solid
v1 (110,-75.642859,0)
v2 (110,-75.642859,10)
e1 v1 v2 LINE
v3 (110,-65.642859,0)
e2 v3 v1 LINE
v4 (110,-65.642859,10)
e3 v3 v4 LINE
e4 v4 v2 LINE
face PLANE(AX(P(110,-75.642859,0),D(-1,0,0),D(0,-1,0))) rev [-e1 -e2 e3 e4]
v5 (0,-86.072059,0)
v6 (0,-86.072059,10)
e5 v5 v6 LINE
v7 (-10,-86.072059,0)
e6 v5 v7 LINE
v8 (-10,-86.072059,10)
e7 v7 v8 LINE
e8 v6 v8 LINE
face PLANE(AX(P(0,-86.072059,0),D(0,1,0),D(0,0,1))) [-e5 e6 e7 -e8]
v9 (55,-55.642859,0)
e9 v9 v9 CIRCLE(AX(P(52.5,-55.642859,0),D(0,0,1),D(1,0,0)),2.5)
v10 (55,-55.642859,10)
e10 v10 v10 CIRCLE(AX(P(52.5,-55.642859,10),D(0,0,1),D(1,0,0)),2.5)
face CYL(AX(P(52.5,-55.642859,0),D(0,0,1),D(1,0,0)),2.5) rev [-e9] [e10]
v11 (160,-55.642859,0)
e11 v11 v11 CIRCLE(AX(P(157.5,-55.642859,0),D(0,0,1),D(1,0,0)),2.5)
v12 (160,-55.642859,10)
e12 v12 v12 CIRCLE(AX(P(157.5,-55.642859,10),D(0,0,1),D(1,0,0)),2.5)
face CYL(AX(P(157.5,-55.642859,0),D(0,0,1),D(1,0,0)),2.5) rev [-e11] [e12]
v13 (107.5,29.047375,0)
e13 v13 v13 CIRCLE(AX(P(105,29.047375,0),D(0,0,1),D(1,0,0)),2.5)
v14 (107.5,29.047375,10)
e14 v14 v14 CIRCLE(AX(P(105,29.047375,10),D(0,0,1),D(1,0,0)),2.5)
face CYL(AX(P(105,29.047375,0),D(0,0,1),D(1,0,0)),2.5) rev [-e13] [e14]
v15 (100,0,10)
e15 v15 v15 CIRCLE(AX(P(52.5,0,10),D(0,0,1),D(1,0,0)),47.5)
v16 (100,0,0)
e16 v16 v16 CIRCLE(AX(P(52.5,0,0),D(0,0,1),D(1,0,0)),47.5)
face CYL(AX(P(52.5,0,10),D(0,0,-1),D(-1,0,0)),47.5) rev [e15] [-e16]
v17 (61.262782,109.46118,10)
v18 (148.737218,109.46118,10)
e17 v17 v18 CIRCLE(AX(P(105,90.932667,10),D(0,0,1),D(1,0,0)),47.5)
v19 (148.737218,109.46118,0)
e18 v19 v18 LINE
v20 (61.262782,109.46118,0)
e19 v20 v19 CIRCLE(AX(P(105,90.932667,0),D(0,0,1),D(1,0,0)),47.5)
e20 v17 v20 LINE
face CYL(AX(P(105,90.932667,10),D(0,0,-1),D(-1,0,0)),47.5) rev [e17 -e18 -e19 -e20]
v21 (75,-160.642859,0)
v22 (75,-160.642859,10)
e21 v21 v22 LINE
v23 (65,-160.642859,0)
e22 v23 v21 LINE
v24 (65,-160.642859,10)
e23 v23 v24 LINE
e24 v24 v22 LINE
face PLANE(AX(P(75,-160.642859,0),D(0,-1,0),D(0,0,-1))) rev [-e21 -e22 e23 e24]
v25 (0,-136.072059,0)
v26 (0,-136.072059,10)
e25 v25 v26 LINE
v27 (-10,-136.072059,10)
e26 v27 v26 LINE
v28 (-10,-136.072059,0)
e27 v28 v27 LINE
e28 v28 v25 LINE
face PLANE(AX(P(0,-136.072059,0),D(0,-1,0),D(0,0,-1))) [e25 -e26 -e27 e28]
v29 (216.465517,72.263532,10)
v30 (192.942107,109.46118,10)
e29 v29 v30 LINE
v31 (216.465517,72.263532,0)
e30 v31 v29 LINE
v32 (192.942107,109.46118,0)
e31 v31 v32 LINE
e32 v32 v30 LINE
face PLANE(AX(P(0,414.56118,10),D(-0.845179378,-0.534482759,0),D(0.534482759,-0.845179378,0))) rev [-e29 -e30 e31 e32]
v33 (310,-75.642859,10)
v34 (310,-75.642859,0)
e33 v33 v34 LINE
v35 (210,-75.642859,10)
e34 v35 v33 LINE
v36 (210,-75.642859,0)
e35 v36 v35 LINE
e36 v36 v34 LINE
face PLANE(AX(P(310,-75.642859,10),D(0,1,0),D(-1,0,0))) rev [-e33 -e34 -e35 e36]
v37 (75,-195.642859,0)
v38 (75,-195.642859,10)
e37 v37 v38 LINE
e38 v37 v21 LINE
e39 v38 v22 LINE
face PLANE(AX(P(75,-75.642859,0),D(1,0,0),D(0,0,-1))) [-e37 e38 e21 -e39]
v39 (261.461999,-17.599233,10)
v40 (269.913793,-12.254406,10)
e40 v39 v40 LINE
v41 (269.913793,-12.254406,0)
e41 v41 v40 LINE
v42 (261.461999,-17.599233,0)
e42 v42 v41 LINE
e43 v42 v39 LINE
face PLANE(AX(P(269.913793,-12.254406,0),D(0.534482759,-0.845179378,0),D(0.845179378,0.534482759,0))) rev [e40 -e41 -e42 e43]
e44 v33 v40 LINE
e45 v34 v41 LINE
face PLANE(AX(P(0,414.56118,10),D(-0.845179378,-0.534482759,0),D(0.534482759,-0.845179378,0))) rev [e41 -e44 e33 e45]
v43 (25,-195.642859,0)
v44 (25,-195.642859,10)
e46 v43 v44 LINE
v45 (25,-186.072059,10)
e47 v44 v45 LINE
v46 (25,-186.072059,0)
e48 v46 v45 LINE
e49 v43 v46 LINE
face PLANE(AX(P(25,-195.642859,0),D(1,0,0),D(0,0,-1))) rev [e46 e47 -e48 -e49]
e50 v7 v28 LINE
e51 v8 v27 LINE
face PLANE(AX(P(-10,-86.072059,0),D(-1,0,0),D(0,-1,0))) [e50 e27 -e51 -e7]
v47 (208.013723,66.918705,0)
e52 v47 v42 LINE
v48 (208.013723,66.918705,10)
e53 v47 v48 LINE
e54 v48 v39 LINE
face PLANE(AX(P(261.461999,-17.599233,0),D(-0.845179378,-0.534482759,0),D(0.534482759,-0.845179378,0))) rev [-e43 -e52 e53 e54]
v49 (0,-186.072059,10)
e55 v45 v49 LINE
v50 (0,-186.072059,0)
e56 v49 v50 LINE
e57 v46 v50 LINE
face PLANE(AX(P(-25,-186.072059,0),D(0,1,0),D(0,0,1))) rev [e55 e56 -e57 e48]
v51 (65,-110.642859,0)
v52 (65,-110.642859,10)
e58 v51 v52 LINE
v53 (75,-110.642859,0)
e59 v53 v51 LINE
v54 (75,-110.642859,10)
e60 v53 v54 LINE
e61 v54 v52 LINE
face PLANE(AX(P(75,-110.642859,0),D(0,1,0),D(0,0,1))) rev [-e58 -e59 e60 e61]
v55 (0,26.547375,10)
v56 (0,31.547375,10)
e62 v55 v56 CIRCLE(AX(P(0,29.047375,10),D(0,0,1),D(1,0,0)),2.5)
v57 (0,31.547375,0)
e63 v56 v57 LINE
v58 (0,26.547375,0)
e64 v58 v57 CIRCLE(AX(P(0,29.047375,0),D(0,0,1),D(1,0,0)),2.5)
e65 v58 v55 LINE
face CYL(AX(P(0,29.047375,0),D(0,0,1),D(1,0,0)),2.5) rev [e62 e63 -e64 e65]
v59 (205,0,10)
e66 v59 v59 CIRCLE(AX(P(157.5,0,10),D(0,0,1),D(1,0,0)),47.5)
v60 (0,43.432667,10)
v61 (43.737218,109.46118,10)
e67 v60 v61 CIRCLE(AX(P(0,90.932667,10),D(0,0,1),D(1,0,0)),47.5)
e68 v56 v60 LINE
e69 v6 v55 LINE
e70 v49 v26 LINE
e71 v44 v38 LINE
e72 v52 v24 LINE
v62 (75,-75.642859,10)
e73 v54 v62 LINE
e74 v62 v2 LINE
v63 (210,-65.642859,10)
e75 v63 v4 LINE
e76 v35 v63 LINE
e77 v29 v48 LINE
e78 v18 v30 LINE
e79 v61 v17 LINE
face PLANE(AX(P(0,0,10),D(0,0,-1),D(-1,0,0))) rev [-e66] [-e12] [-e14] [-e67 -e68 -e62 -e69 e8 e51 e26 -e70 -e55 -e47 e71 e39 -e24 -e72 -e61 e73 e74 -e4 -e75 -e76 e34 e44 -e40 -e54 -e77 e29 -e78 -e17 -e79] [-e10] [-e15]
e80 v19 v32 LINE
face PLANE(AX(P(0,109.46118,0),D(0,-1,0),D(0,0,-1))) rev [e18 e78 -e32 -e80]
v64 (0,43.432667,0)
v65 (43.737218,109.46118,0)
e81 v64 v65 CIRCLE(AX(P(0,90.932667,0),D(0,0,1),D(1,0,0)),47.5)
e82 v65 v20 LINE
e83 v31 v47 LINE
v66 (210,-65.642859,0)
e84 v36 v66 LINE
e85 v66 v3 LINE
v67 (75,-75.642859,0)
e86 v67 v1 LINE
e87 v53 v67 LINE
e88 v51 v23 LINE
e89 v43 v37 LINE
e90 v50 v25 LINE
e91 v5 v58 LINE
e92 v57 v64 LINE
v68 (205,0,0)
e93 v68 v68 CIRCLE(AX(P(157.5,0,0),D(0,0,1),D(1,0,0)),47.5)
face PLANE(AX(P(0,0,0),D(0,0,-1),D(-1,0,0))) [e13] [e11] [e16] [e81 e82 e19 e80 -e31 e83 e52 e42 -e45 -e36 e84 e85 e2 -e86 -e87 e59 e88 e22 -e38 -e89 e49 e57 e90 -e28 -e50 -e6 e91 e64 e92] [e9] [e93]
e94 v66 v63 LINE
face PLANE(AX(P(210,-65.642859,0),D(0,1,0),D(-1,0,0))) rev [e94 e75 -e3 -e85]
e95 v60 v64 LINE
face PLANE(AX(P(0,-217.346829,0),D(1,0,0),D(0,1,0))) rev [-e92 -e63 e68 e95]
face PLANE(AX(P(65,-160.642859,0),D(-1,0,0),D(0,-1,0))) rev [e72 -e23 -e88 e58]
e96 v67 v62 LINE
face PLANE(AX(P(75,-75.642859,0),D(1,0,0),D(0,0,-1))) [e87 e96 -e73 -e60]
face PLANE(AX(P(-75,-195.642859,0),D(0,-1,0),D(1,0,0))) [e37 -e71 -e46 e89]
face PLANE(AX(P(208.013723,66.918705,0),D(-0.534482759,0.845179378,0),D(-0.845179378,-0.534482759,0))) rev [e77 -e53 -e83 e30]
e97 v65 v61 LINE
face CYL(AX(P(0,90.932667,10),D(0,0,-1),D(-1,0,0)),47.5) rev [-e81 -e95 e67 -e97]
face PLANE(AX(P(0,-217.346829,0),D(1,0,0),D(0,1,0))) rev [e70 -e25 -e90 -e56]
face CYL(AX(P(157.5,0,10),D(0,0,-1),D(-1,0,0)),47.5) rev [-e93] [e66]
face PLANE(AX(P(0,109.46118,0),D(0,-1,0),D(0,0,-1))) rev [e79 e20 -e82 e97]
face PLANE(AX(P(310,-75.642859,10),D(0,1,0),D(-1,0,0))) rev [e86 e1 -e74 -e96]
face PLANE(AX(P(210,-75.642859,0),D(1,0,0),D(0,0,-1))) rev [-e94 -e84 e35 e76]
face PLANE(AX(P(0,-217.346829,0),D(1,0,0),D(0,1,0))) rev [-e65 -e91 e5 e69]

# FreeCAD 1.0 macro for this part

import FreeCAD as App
import Part
import Sketcher

V = App.Vector
Q = App.Units.Quantity


def add_polygon(sketch, points):
    """Adds a closed chain of lines whose ends are joined by coincident constraints."""
    first, n = sketch.GeometryCount, len(points)
    for a, b in zip(points, points[1:] + points[:1]):
        sketch.addGeometry(Part.LineSegment(App.Vector(*a, 0), App.Vector(*b, 0)), False)
    for i in range(n):
        sketch.addConstraint(Sketcher.Constraint("Coincident", first + i, 2, first + (i + 1) % n, 1))

doc = App.newDocument("Part")
body = doc.addObject("PartDesign::Body", "Body")

# Sketch on XY plane
sketch1 = body.newObject("Sketcher::SketchObject", "Sketch")
sketch1.AttachmentSupport = (doc.getObject("XY_Plane"), [""])
sketch1.MapMode = "FlatFace"
add_polygon(sketch1, [(0, 414.56118), (-310, -75.642859), (310, -75.642859)])  # lines 0-2
sketch1.addGeometry(Part.Circle(V(157.5, 0, 0), V(0, 0, 1), 47.5), False)  # 3
sketch1.addGeometry(Part.Circle(V(52.5, 0, 0), V(0, 0, 1), 47.5), False)  # 4
sketch1.addGeometry(Part.Circle(V(105, 90.932667, 0), V(0, 0, 1), 47.5), False)  # 5
sketch1.addGeometry(Part.Circle(V(-52.5, 0, 0), V(0, 0, 1), 47.5), False)  # 6
sketch1.addGeometry(Part.Circle(V(-157.5, 0, 0), V(0, 0, 1), 47.5), False)  # 7
sketch1.addGeometry(Part.Circle(V(0, 90.932667, 0), V(0, 0, 1), 47.5), False)  # 8
sketch1.addGeometry(Part.Circle(V(-105, 90.932667, 0), V(0, 0, 1), 47.5), False)  # 9
sketch1.addGeometry(Part.Circle(V(52.5, 181.865335, 0), V(0, 0, 1), 47.5), False)  # 10
sketch1.addGeometry(Part.Circle(V(-52.5, 181.865335, 0), V(0, 0, 1), 47.5), False)  # 11
sketch1.addGeometry(Part.Circle(V(0, 272.798002, 0), V(0, 0, 1), 47.5), False)  # 12
sketch1.addConstraint([
    Sketcher.Constraint("Horizontal", 1),
    Sketcher.Constraint("Equal", 3, 4),
    Sketcher.Constraint("Equal", 4, 5),
    Sketcher.Constraint("Equal", 5, 6),
    Sketcher.Constraint("Equal", 6, 7),
    Sketcher.Constraint("Equal", 7, 8),
    Sketcher.Constraint("Equal", 8, 9),
    Sketcher.Constraint("Equal", 9, 10),
    Sketcher.Constraint("Equal", 10, 11),
    Sketcher.Constraint("Equal", 11, 12),
    Sketcher.Constraint("Symmetric", 4, 3, 6, 3, -1, 1),
    Sketcher.Constraint("Symmetric", 3, 3, 7, 3, -1, 1),
    Sketcher.Constraint("Symmetric", 5, 3, 9, 3, -2),
    Sketcher.Constraint("Symmetric", 10, 3, 11, 3, -2),
    Sketcher.Constraint("PointOnObject", 3, 3, -1),
    Sketcher.Constraint("PointOnObject", 4, 3, -1),
    Sketcher.Constraint("PointOnObject", 8, 3, -2),
    Sketcher.Constraint("PointOnObject", 12, 3, -2),
    Sketcher.Constraint("PointOnObject", 2, 2, -2),
    Sketcher.Constraint("Horizontal", 5, 3, 8, 3),
    Sketcher.Constraint("Vertical", 4, 3, 10, 3),
    Sketcher.Constraint("Equal", 0, 2),
    Sketcher.Constraint("Diameter", 3, Q("95 mm")),
    Sketcher.Constraint("DistanceX", 1, 1, 1, 2, Q("620 mm")),
    Sketcher.Constraint("Distance", 0, Q("580 mm")),
    Sketcher.Constraint("DistanceX", -1, 1, 5, 3, Q("105 mm")),
    Sketcher.Constraint("DistanceX", 4, 3, 3, 3, Q("105 mm")),
    Sketcher.Constraint("DistanceX", 6, 3, 4, 3, Q("105 mm")),
    Sketcher.Constraint("DistanceY", 0, 2, -1, 1, Q("75.642859 mm")),
    Sketcher.Constraint("DistanceY", -1, 1, 5, 3, Q("90.932667 mm")),
    Sketcher.Constraint("DistanceY", -1, 1, 10, 3, Q("181.865335 mm")),
    Sketcher.Constraint("DistanceY", -1, 1, 12, 3, Q("272.798002 mm")),
])
pad1 = body.newObject("PartDesign::Pad", "Pad")
pad1.Profile = sketch1
pad1.Length = 10

# Sketch on XY plane
sketch2 = body.newObject("Sketcher::SketchObject", "Sketch001")
sketch2.AttachmentSupport = (doc.getObject("XY_Plane"), [""])
sketch2.MapMode = "FlatFace"
sketch2.AttachmentOffset = App.Placement(V(0, 0, 10), App.Rotation())
add_polygon(sketch2, [(-269.913793, -12.254406), (-261.461999, -17.599233), (-208.013723, 66.918705), (-216.465517, 72.263532)])  # lines 0-3
add_polygon(sketch2, [(-181.724138, 127.200192), (-173.272344, 121.855364), (-119.824068, 206.373302), (-128.275862, 211.718129)])  # lines 4-7
add_polygon(sketch2, [(-93.534483, 266.654789), (-85.082689, 261.309961), (-31.634413, 345.827899), (-40.086207, 351.172727)])  # lines 8-11
add_polygon(sketch2, [(261.461999, -17.599233), (269.913793, -12.254406), (216.465517, 72.263532), (208.013723, 66.918705)])  # lines 12-15
add_polygon(sketch2, [(173.272344, 121.855364), (181.724138, 127.200192), (128.275862, 211.718129), (119.824068, 206.373302)])  # lines 16-19
add_polygon(sketch2, [(85.082689, 261.309961), (93.534483, 266.654789), (40.086207, 351.172727), (31.634413, 345.827899)])  # lines 20-23
add_polygon(sketch2, [(-210, -65.642859), (-210, -75.642859), (-110, -75.642859), (-110, -65.642859)])  # lines 24-27
add_polygon(sketch2, [(110, -65.642859), (110, -75.642859), (210, -75.642859), (210, -65.642859)])  # lines 28-31
sketch2.addConstraint([
    Sketcher.Constraint("Vertical", 24),
    Sketcher.Constraint("Horizontal", 25),
    Sketcher.Constraint("Vertical", 26),
    Sketcher.Constraint("Horizontal", 27),
    Sketcher.Constraint("Vertical", 28),
    Sketcher.Constraint("Horizontal", 29),
    Sketcher.Constraint("Vertical", 30),
    Sketcher.Constraint("Horizontal", 31),
    Sketcher.Constraint("Symmetric", 3, 2, 12, 2, -2),
    Sketcher.Constraint("Symmetric", 2, 2, 13, 2, -2),
    Sketcher.Constraint("Symmetric", 1, 2, 14, 2, -2),
    Sketcher.Constraint("Symmetric", 0, 2, 15, 2, -2),
    Sketcher.Constraint("Symmetric", 7, 2, 16, 2, -2),
    Sketcher.Constraint("Symmetric", 6, 2, 17, 2, -2),
    Sketcher.Constraint("Symmetric", 5, 2, 18, 2, -2),
    Sketcher.Constraint("Symmetric", 4, 2, 19, 2, -2),
    Sketcher.Constraint("Symmetric", 11, 2, 20, 2, -2),
    Sketcher.Constraint("Symmetric", 10, 2, 21, 2, -2),
    Sketcher.Constraint("Symmetric", 9, 2, 22, 2, -2),
    Sketcher.Constraint("Symmetric", 8, 2, 23, 2, -2),
    Sketcher.Constraint("Symmetric", 25, 2, 28, 2, -2),
    Sketcher.Constraint("Symmetric", 27, 2, 30, 2, -2),
    Sketcher.Constraint("Perpendicular", 0, 1),
    Sketcher.Constraint("Perpendicular", 1, 2),
    Sketcher.Constraint("Perpendicular", 2, 3),
    Sketcher.Constraint("Perpendicular", 3, 4),
    Sketcher.Constraint("Perpendicular", 4, 5),
    Sketcher.Constraint("Perpendicular", 5, 6),
    Sketcher.Constraint("Perpendicular", 6, 7),
    Sketcher.Constraint("Perpendicular", 7, 8),
    Sketcher.Constraint("Perpendicular", 8, 9),
    Sketcher.Constraint("Perpendicular", 9, 10),
    Sketcher.Constraint("Perpendicular", 10, 11),
    Sketcher.Constraint("Equal", 2, 4),
    Sketcher.Constraint("Equal", 3, 5),
    Sketcher.Constraint("Equal", 6, 8),
    Sketcher.Constraint("Equal", 7, 9),
    Sketcher.Constraint("DistanceX", 25, 1, 25, 2, Q("100 mm")),
    Sketcher.Constraint("DistanceY", 24, 2, 24, 1, Q("10 mm")),
    Sketcher.Constraint("Distance", 0, Q("10 mm")),
    Sketcher.Constraint("Distance", 1, Q("100 mm")),
    Sketcher.Constraint("DistanceX", 24, 2, -1, 1, Q("210 mm")),
    Sketcher.Constraint("DistanceX", 11, 2, 13, 2, Q("310 mm")),
    Sketcher.Constraint("DistanceX", 0, 2, -1, 1, Q("261.461999 mm")),
    Sketcher.Constraint("DistanceY", -1, 1, 5, 2, Q("206.373302 mm")),
    Sketcher.Constraint("DistanceY", -1, 1, 9, 2, Q("345.827899 mm")),
    Sketcher.Constraint("DistanceX", 5, 2, -1, 1, Q("119.824068 mm")),
    Sketcher.Constraint("DistanceY", -1, 1, 6, 2, Q("211.718129 mm")),
    Sketcher.Constraint("DistanceY", 24, 2, -1, 1, Q("75.642859 mm")),
    Sketcher.Constraint("DistanceY", 1, 2, 4, 2, Q("54.93666 mm")),
])
pocket1 = body.newObject("PartDesign::Pocket", "Pocket")
pocket1.Profile = sketch2
pocket1.Type = "ThroughAll"

# Sketch on XY plane
sketch3 = body.newObject("Sketcher::SketchObject", "Sketch002")
sketch3.AttachmentSupport = (doc.getObject("XY_Plane"), [""])
sketch3.MapMode = "FlatFace"
sketch3.AttachmentOffset = App.Placement(V(0, 0, 10), App.Rotation())
sketch3.addGeometry([
    Part.Circle(V(-157.5, -55.642859, 0), V(0, 0, 1), 2.5),  # 0
    Part.Circle(V(-52.5, -55.642859, 0), V(0, 0, 1), 2.5),  # 1
    Part.Circle(V(52.5, -55.642859, 0), V(0, 0, 1), 2.5),  # 2
    Part.Circle(V(157.5, -55.642859, 0), V(0, 0, 1), 2.5),  # 3
    Part.Circle(V(-105, 29.047375, 0), V(0, 0, 1), 2.5),  # 4
    Part.Circle(V(0, 29.047375, 0), V(0, 0, 1), 2.5),  # 5
    Part.Circle(V(105, 29.047375, 0), V(0, 0, 1), 2.5),  # 6
    Part.Circle(V(-52.5, 119.980042, 0), V(0, 0, 1), 2.5),  # 7
    Part.Circle(V(52.5, 119.980042, 0), V(0, 0, 1), 2.5),  # 8
    Part.Circle(V(0, 210.91271, 0), V(0, 0, 1), 2.5),  # 9
], False)
sketch3.addConstraint([
    Sketcher.Constraint("Equal", 0, 1),
    Sketcher.Constraint("Equal", 1, 2),
    Sketcher.Constraint("Equal", 2, 3),
    Sketcher.Constraint("Equal", 3, 4),
    Sketcher.Constraint("Equal", 4, 5),
    Sketcher.Constraint("Equal", 5, 6),
    Sketcher.Constraint("Equal", 6, 7),
    Sketcher.Constraint("Equal", 7, 8),
    Sketcher.Constraint("Equal", 8, 9),
    Sketcher.Constraint("Symmetric", 1, 3, 2, 3, -2),
    Sketcher.Constraint("Symmetric", 0, 3, 3, 3, -2),
    Sketcher.Constraint("Symmetric", 4, 3, 6, 3, -2),
    Sketcher.Constraint("Symmetric", 7, 3, 8, 3, -2),
    Sketcher.Constraint("PointOnObject", 5, 3, -2),
    Sketcher.Constraint("PointOnObject", 9, 3, -2),
    Sketcher.Constraint("Horizontal", 0, 3, 1, 3),
    Sketcher.Constraint("Horizontal", 4, 3, 5, 3),
    Sketcher.Constraint("Vertical", 1, 3, 7, 3),
    Sketcher.Constraint("Diameter", 0, Q("5 mm")),
    Sketcher.Constraint("DistanceX", 4, 3, -1, 1, Q("105 mm")),
    Sketcher.Constraint("DistanceX", 0, 3, 1, 3, Q("105 mm")),
    Sketcher.Constraint("DistanceX", 1, 3, 2, 3, Q("105 mm")),
    Sketcher.Constraint("DistanceY", 1, 3, 7, 3, Q("175.622902 mm")),
    Sketcher.Constraint("DistanceY", 0, 3, -1, 1, Q("55.642859 mm")),
    Sketcher.Constraint("DistanceY", -1, 1, 9, 3, Q("210.91271 mm")),
    Sketcher.Constraint("DistanceY", -1, 1, 4, 3, Q("29.047375 mm")),
])
pocket2 = body.newObject("PartDesign::Pocket", "Pocket001")
pocket2.Profile = sketch3
pocket2.Type = "ThroughAll"

# Sketch on XY plane
sketch4 = body.newObject("Sketcher::SketchObject", "Sketch003")
sketch4.AttachmentSupport = (doc.getObject("XY_Plane"), [""])
sketch4.MapMode = "FlatFace"
sketch4.AttachmentOffset = App.Placement(V(0, 0, 10), App.Rotation())
add_polygon(sketch4, [(-75, -75.642859), (-75, -195.642859), (75, -195.642859), (75, -75.642859)])  # lines 0-3
sketch4.addConstraint([
    Sketcher.Constraint("Vertical", 0),
    Sketcher.Constraint("Horizontal", 1),
    Sketcher.Constraint("Vertical", 2),
    Sketcher.Constraint("Horizontal", 3),
    Sketcher.Constraint("DistanceX", 1, 1, 1, 2, Q("150 mm")),
    Sketcher.Constraint("DistanceY", 0, 2, 0, 1, Q("120 mm")),
    Sketcher.Constraint("DistanceX", 0, 2, -1, 1, Q("75 mm")),
    Sketcher.Constraint("DistanceY", 0, 2, -1, 1, Q("195.642859 mm")),
])
pad2 = body.newObject("PartDesign::Pad", "Pad001")
pad2.Profile = sketch4
pad2.Length = 10
pad2.Reversed = True

# Sketch on XY plane
sketch5 = body.newObject("Sketcher::SketchObject", "Sketch004")
sketch5.AttachmentSupport = (doc.getObject("XY_Plane"), [""])
sketch5.MapMode = "FlatFace"
sketch5.AttachmentOffset = App.Placement(V(0, 0, 10), App.Rotation())
add_polygon(sketch5, [(-75, -110.642859), (-75, -160.642859), (-65, -160.642859), (-65, -110.642859)])  # lines 0-3
add_polygon(sketch5, [(-25, -186.072059), (-25, -195.642859), (25, -195.642859), (25, -186.072059)])  # lines 4-7
add_polygon(sketch5, [(65, -110.642859), (65, -160.642859), (75, -160.642859), (75, -110.642859)])  # lines 8-11
sketch5.addConstraint([
    Sketcher.Constraint("Vertical", 0),
    Sketcher.Constraint("Horizontal", 1),
    Sketcher.Constraint("Vertical", 2),
    Sketcher.Constraint("Horizontal", 3),
    Sketcher.Constraint("Vertical", 4),
    Sketcher.Constraint("Horizontal", 5),
    Sketcher.Constraint("Vertical", 6),
    Sketcher.Constraint("Horizontal", 7),
    Sketcher.Constraint("Vertical", 8),
    Sketcher.Constraint("Horizontal", 9),
    Sketcher.Constraint("Vertical", 10),
    Sketcher.Constraint("Horizontal", 11),
    Sketcher.Constraint("Symmetric", 1, 2, 8, 2, -2),
    Sketcher.Constraint("Symmetric", 3, 2, 10, 2, -2),
    Sketcher.Constraint("Equal", 7, 0),
    Sketcher.Constraint("DistanceX", 1, 1, 1, 2, Q("10 mm")),
    Sketcher.Constraint("DistanceX", 5, 1, 5, 2, Q("50 mm")),
    Sketcher.Constraint("DistanceX", 0, 2, -1, 1, Q("75 mm")),
    Sketcher.Constraint("DistanceX", 4, 2, -1, 1, Q("25 mm")),
    Sketcher.Constraint("DistanceY", 4, 2, 1, 2, Q("35 mm")),
    Sketcher.Constraint("DistanceY", 4, 2, 4, 1, Q("9.5708 mm")),
    Sketcher.Constraint("DistanceY", 0, 2, -1, 1, Q("160.642859 mm")),
])
pocket3 = body.newObject("PartDesign::Pocket", "Pocket002")
pocket3.Profile = sketch5
pocket3.Length = 10

# Sketch on XY plane
sketch6 = body.newObject("Sketcher::SketchObject", "Sketch005")
sketch6.AttachmentSupport = (doc.getObject("XY_Plane"), [""])
sketch6.MapMode = "FlatFace"
sketch6.AttachmentOffset = App.Placement(V(0, 0, 10), App.Rotation())
add_polygon(sketch6, [(0, -217.346829), (0, 109.46118), (292.569273, 109.46118), (292.569273, 414.56118), (-356.657737, 414.56118), (-356.657737, -217.346829)])  # lines 0-5
sketch6.addConstraint([
    Sketcher.Constraint("Vertical", 0),
    Sketcher.Constraint("Horizontal", 1),
    Sketcher.Constraint("Vertical", 2),
    Sketcher.Constraint("Horizontal", 3),
    Sketcher.Constraint("Vertical", 4),
    Sketcher.Constraint("Horizontal", 5),
    Sketcher.Constraint("PointOnObject", 0, 2, -2),
    Sketcher.Constraint("DistanceY", 2, 1, 2, 2, Q("305.1 mm")),
    Sketcher.Constraint("DistanceX", 3, 2, 3, 1, Q("649.22701 mm")),
    Sketcher.Constraint("DistanceY", 0, 1, 0, 2, Q("326.808009 mm")),
    Sketcher.Constraint("DistanceX", 1, 1, 1, 2, Q("292.569273 mm")),
    Sketcher.Constraint("DistanceY", -1, 1, 0, 2, Q("109.46118 mm")),
])
pocket4 = body.newObject("PartDesign::Pocket", "Pocket003")
pocket4.Profile = sketch6
pocket4.Length = 10

# Sketch on XY plane
sketch7 = body.newObject("Sketcher::SketchObject", "Sketch006")
sketch7.AttachmentSupport = (doc.getObject("XY_Plane"), [""])
sketch7.MapMode = "FlatFace"
sketch7.AttachmentOffset = App.Placement(V(0, 0, 10), App.Rotation())
add_polygon(sketch7, [(-10, -86.072059), (-10, -136.072059), (0, -136.072059), (0, -86.072059)])  # lines 0-3
sketch7.addConstraint([
    Sketcher.Constraint("Vertical", 0),
    Sketcher.Constraint("Horizontal", 1),
    Sketcher.Constraint("Vertical", 2),
    Sketcher.Constraint("Horizontal", 3),
    Sketcher.Constraint("PointOnObject", 1, 2, -2),
    Sketcher.Constraint("DistanceX", 1, 1, 1, 2, Q("10 mm")),
    Sketcher.Constraint("DistanceY", 0, 2, 0, 1, Q("50 mm")),
    Sketcher.Constraint("DistanceY", 0, 2, -1, 1, Q("136.072059 mm")),
])
pad3 = body.newObject("PartDesign::Pad", "Pad002")
pad3.Profile = sketch7
pad3.Length = 10
pad3.Reversed = True

doc.recompute()
